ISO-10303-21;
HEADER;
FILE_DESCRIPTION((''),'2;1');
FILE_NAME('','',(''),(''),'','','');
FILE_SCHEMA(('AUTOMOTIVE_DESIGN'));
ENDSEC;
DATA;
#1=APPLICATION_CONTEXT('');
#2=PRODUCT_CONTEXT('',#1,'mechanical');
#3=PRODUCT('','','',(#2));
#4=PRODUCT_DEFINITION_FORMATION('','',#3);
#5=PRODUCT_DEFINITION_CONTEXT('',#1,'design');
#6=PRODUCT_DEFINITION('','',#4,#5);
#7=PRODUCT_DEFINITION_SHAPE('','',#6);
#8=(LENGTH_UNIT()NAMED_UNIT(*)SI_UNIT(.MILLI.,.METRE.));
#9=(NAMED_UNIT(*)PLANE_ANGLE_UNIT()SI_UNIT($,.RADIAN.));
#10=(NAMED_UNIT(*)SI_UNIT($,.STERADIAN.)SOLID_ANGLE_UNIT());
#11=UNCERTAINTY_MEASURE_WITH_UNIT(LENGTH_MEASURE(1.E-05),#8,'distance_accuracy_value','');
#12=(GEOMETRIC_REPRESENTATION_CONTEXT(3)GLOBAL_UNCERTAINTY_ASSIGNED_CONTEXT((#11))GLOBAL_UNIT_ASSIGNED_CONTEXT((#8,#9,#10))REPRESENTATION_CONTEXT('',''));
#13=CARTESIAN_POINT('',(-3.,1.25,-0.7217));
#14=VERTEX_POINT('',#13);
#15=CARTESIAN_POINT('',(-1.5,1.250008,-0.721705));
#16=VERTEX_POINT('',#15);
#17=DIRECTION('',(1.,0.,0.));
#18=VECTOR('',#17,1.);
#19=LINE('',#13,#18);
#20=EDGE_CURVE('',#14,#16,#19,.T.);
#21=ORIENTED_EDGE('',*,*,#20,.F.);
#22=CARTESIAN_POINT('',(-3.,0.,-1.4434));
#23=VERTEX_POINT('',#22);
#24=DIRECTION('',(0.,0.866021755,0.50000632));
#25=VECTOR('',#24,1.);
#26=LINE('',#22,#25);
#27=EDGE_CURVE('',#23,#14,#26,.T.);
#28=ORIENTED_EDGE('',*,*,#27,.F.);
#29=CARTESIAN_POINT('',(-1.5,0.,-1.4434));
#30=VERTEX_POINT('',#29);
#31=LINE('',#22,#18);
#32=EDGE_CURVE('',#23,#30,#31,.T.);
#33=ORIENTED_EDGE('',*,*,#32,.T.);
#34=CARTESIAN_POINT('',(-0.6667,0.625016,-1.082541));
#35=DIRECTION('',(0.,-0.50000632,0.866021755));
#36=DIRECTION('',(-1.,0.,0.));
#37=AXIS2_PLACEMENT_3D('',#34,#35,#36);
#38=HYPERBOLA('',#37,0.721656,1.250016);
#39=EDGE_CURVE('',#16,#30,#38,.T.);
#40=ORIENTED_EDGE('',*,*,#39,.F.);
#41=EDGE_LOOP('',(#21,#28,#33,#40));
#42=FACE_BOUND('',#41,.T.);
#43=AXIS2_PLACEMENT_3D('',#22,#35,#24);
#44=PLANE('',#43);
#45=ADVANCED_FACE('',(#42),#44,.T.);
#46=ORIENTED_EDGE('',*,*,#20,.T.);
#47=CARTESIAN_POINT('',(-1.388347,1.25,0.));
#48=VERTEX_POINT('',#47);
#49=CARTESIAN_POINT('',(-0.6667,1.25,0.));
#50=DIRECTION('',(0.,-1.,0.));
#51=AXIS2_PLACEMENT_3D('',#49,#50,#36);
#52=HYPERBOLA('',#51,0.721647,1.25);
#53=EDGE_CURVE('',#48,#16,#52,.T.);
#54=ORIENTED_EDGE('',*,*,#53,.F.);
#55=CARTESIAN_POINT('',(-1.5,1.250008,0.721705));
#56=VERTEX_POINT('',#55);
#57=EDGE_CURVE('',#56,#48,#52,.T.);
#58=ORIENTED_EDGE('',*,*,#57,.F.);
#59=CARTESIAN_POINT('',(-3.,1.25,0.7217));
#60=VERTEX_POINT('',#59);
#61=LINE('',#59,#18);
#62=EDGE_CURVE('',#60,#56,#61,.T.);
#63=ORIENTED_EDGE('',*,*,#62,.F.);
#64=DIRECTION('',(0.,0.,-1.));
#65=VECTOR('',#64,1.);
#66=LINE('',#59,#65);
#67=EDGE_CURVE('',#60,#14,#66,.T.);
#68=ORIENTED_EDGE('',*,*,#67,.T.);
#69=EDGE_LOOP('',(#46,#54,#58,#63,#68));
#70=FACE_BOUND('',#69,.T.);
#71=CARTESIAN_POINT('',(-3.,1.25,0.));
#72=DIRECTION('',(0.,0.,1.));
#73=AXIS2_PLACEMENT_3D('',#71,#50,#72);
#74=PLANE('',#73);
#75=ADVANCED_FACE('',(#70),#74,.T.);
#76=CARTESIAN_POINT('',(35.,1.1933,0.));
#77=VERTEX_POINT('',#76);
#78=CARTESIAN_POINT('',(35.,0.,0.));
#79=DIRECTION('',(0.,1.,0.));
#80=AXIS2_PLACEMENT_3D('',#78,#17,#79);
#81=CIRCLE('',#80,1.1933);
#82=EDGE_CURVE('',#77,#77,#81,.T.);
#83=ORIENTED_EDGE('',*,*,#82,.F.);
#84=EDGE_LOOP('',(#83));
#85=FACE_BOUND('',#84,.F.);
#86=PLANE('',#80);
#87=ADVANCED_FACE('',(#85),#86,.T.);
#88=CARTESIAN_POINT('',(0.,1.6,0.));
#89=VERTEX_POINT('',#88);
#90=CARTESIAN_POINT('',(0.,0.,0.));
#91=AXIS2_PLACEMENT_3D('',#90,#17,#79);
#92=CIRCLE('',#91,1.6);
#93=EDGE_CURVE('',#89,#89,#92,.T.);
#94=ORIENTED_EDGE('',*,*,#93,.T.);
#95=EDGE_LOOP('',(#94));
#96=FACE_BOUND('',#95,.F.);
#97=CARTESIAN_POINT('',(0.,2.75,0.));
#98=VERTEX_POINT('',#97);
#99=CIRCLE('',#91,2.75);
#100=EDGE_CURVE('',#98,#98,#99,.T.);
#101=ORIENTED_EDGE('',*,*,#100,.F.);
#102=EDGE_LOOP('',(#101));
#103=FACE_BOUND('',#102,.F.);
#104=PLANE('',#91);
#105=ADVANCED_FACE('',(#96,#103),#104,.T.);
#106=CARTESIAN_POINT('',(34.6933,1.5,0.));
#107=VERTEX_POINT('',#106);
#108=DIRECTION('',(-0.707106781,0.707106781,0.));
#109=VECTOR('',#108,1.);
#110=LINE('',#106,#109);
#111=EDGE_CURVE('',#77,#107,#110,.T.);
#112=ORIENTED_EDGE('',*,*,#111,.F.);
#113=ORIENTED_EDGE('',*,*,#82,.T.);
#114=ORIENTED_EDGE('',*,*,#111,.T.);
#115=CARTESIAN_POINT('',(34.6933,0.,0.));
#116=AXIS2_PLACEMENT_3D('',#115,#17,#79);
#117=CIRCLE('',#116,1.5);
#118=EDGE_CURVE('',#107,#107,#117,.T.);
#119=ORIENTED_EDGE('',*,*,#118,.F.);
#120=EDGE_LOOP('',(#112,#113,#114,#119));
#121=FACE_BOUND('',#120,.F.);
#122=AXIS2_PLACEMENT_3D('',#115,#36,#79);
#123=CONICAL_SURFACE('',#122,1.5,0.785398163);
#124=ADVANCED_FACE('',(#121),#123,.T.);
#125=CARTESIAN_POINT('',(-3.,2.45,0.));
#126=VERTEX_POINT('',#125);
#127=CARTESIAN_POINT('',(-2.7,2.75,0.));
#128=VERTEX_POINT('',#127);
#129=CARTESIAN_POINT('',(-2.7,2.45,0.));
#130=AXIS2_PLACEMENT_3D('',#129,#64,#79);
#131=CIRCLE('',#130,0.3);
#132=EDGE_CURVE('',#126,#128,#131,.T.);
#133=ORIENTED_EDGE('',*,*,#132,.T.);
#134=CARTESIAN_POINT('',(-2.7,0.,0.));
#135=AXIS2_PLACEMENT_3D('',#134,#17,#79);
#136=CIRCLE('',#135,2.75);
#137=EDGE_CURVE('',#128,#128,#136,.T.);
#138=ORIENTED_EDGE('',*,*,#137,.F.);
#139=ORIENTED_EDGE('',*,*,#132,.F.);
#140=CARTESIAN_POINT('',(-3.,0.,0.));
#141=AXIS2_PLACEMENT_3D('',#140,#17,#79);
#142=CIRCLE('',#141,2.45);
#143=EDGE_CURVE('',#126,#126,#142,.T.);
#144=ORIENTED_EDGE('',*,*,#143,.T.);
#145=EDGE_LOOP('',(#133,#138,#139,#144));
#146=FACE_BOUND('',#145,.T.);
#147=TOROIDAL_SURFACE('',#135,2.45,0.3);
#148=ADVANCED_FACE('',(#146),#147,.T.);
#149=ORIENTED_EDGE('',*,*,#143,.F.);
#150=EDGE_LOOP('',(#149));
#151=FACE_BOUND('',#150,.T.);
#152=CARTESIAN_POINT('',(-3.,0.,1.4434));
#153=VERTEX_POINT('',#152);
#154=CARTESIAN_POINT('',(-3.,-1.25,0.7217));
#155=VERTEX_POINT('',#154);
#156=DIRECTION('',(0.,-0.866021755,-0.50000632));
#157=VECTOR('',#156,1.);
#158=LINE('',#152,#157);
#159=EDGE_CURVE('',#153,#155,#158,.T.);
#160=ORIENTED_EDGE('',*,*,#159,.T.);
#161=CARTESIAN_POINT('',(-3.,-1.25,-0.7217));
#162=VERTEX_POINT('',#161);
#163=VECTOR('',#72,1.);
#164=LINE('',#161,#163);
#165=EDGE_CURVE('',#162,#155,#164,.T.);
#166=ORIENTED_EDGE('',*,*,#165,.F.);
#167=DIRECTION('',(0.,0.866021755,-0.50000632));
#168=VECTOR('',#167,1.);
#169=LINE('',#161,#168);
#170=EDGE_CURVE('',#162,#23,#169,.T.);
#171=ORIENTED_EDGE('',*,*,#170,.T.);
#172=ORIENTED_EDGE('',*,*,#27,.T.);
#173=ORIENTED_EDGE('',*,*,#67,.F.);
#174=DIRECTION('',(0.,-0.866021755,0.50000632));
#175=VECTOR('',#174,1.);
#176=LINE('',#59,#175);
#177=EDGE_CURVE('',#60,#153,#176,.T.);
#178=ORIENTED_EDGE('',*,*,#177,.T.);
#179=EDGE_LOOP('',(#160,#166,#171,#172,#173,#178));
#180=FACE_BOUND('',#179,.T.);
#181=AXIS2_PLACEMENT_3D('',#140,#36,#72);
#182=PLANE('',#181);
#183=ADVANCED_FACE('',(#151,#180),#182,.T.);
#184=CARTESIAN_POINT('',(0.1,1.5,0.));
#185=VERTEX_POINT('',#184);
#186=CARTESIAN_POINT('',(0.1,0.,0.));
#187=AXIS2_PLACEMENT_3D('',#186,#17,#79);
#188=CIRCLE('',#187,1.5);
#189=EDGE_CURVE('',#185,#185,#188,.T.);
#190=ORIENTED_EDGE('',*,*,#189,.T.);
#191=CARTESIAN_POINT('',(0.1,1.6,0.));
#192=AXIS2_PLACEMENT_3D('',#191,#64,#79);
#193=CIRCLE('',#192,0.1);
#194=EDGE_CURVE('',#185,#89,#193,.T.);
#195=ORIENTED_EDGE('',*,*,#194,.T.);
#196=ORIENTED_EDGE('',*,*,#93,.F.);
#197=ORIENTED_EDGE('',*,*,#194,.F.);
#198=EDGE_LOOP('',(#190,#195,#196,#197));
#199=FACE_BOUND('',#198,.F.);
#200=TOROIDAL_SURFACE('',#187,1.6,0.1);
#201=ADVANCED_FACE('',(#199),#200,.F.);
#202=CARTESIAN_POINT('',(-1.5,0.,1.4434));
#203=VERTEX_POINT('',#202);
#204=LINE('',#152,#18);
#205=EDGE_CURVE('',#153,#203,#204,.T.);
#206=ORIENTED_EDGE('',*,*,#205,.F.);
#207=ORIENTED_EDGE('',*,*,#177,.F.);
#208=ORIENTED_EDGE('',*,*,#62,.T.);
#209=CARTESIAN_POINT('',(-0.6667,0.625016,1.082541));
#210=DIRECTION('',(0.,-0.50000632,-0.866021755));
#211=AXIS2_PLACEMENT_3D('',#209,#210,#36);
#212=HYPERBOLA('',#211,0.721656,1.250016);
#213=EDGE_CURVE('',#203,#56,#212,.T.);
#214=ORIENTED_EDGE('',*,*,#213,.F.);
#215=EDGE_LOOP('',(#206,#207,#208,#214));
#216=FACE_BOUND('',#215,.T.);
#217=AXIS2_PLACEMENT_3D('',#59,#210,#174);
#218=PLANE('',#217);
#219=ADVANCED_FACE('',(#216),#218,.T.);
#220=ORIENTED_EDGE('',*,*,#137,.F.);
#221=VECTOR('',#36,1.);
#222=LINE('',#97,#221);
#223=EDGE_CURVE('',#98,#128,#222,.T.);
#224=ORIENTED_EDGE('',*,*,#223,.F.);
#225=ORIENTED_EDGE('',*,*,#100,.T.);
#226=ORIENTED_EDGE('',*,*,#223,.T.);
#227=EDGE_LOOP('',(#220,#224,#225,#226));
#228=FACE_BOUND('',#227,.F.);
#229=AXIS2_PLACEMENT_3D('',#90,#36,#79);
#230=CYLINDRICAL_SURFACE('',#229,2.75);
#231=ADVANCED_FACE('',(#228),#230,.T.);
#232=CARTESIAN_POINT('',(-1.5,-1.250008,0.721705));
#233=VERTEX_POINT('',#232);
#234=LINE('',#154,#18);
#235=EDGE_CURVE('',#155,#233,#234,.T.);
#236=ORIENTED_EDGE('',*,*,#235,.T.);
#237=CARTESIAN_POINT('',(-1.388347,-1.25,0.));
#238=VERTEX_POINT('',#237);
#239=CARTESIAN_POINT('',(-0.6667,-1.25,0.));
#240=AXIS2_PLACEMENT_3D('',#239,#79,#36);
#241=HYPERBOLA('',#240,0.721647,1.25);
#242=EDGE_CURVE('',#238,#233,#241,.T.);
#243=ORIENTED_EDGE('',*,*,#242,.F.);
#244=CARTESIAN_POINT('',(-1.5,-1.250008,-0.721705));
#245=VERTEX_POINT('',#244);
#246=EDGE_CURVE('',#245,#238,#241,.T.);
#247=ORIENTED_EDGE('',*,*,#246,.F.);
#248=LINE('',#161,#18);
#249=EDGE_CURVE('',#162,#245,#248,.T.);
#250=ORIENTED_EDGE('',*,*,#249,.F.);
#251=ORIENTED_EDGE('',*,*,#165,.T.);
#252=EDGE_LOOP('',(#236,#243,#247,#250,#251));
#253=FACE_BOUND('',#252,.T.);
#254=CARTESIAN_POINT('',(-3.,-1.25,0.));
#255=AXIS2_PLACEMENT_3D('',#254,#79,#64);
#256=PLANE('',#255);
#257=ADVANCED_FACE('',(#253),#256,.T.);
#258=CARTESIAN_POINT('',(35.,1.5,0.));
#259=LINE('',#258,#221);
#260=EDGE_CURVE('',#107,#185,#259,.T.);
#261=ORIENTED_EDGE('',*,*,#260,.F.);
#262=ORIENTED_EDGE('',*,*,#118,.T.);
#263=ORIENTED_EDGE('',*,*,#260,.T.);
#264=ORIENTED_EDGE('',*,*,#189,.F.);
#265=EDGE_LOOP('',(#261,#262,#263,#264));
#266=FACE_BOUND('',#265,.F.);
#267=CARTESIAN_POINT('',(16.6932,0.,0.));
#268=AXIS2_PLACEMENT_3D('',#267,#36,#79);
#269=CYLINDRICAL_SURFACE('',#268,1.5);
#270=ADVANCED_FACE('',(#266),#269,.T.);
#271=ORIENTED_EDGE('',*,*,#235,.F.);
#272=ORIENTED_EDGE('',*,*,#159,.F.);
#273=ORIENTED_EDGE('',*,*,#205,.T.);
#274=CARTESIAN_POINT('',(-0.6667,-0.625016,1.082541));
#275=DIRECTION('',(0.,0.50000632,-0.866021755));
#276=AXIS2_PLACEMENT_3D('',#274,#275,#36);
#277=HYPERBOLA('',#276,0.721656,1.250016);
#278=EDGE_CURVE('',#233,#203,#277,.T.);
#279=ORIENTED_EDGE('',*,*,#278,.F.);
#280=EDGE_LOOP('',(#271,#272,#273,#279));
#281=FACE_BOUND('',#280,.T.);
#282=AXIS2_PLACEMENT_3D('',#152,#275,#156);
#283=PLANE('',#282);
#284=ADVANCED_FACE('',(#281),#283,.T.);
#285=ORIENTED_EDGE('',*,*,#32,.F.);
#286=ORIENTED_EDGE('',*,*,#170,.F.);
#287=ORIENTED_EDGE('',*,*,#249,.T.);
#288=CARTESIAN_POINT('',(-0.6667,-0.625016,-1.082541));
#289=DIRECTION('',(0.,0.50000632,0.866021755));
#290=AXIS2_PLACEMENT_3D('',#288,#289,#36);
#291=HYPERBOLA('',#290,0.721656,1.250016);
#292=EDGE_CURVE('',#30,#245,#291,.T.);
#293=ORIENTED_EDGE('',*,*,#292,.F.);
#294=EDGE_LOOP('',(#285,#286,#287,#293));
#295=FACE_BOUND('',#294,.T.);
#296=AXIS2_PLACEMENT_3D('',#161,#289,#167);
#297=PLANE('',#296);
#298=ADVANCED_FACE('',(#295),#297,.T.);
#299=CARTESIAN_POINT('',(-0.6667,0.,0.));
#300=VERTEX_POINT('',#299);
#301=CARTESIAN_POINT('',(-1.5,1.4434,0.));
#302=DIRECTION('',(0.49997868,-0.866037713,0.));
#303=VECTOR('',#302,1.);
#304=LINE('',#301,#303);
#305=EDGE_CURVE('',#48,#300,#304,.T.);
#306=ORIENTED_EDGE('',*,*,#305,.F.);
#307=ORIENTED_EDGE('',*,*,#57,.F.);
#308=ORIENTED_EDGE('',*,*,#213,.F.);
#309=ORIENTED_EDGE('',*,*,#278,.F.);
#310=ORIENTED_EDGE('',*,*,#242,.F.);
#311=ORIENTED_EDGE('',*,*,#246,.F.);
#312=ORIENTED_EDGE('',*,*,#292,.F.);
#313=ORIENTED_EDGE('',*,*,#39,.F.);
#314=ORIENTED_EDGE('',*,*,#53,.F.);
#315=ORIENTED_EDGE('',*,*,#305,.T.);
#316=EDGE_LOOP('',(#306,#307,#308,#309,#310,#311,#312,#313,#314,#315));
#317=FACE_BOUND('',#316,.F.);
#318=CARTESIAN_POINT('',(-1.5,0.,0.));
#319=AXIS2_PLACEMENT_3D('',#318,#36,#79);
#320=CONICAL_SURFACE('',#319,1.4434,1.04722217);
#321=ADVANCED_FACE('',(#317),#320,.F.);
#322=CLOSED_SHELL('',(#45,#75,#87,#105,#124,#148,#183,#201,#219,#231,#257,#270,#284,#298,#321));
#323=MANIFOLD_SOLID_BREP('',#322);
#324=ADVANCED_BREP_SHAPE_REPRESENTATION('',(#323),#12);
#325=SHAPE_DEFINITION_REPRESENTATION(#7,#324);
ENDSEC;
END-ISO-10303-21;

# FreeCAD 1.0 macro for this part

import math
import FreeCAD as App
import Part
import Sketcher
from FreeCAD import Vector
Q = App.Units.Quantity


def edges_at(feature, points):
    """Names of the edges that pass closest to the given points."""
    edges = feature.Shape.Edges
    near = lambda p: min(range(len(edges)), key=lambda i: edges[i].distToShape(Part.Vertex(*p))[0])
    return sorted({f"Edge{near(p) + 1}" for p in points})

doc = App.newDocument("Part")
body = doc.addObject("PartDesign::Body", "Body")

sketch1 = body.newObject("Sketcher::SketchObject", "Sketch")
sketch1.AttachmentSupport = (doc.getObject("XY_Plane"), [""])
sketch1.MapMode = "FlatFace"
sketch1.addGeometry([
    Part.LineSegment(Vector(-1.5, 1.4, 0), Vector(-0.7, 0, 0)),
    Part.LineSegment(Vector(-0.7, 0, 0), Vector(35, 0, 0)),
    Part.LineSegment(Vector(35, 0, 0), Vector(35, 1.5, 0)),
    Part.LineSegment(Vector(35, 1.5, 0), Vector(0, 1.5, 0)),
    Part.LineSegment(Vector(0, 1.5, 0), Vector(0, 2.8, 0)),
    Part.LineSegment(Vector(0, 2.8, 0), Vector(-3, 2.8, 0)),
    Part.LineSegment(Vector(-3, 2.8, 0), Vector(-3, 1.4, 0)),
    Part.LineSegment(Vector(-3, 1.4, 0), Vector(-1.5, 1.4, 0)),
], False)
sketch1.addConstraint([
    Sketcher.Constraint("Coincident", 0, 2, 1, 1),
    Sketcher.Constraint("Coincident", 1, 2, 2, 1),
    Sketcher.Constraint("Coincident", 2, 2, 3, 1),
    Sketcher.Constraint("Coincident", 3, 2, 4, 1),
    Sketcher.Constraint("Coincident", 4, 2, 5, 1),
    Sketcher.Constraint("Coincident", 5, 2, 6, 1),
    Sketcher.Constraint("Coincident", 6, 2, 7, 1),
    Sketcher.Constraint("Coincident", 7, 2, 0, 1),
    Sketcher.Constraint("Horizontal", 1),
    Sketcher.Constraint("Vertical", 2),
    Sketcher.Constraint("Horizontal", 3),
    Sketcher.Constraint("Vertical", 4),
    Sketcher.Constraint("Horizontal", 5),
    Sketcher.Constraint("Vertical", 6),
    Sketcher.Constraint("Horizontal", 7),
    Sketcher.Constraint("PointOnObject", 0, 2, -1),
    Sketcher.Constraint("PointOnObject", 3, 2, -2),
    Sketcher.Constraint("Equal", 7, 2),
    Sketcher.Constraint("DistanceX", 3, 2, 3, 1, 35.0),
    Sketcher.Constraint("DistanceX", 5, 2, 5, 1, 3.0),
    Sketcher.Constraint("DistanceX", 7, 1, 7, 2, 1.5),
    Sketcher.Constraint("DistanceY", 4, 1, 4, 2, 1.25),
    Sketcher.Constraint("DistanceX", 1, 1, 1, 2, 35.6667),
    Sketcher.Constraint("DistanceY", 6, 2, 6, 1, 1.3066),
])
revolution = body.newObject("PartDesign::Revolution", "Revolution")
revolution.Profile = sketch1
revolution.ReferenceAxis = (sketch1, ["H_Axis"])
revolution.Angle = 360

sketch2 = body.newObject("Sketcher::SketchObject", "Sketch001")
sketch2.AttachmentSupport = (doc.getObject("YZ_Plane"), [""])
sketch2.MapMode = "FlatFace"
sketch2.AttachmentOffset = App.Placement(Vector(0, 0, -3), App.Rotation())
sketch2.addGeometry([
    Part.LineSegment(Vector(1.2, 0.7, 0), Vector(0, 1.4, 0)),
    Part.ArcOfCircle(Part.Circle(Vector(0, 0, 0), Vector(0, 0, 1), 1.4), math.radians(30), math.radians(90)),
    Part.ArcOfCircle(Part.Circle(Vector(0, 0, 0), Vector(0, 0, 1), 1.4), math.radians(90), math.radians(150)),
    Part.LineSegment(Vector(0, 1.4, 0), Vector(-1.2, 0.7, 0)),
    Part.ArcOfCircle(Part.Circle(Vector(0, 0, 0), Vector(0, 0, 1), 1.4), math.radians(-30), math.radians(30)),
    Part.LineSegment(Vector(1.2, 0.7, 0), Vector(1.2, -0.7, 0)),
    Part.LineSegment(Vector(-1.2, 0.7, 0), Vector(-1.2, -0.7, 0)),
    Part.ArcOfCircle(Part.Circle(Vector(0, 0, 0), Vector(0, 0, 1), 1.4), math.radians(150), math.radians(210)),
    Part.LineSegment(Vector(-1.2, -0.7, 0), Vector(0, -1.4, 0)),
    Part.ArcOfCircle(Part.Circle(Vector(0, 0, 0), Vector(0, 0, 1), 1.4), math.radians(-150), math.radians(-90)),
    Part.ArcOfCircle(Part.Circle(Vector(0, 0, 0), Vector(0, 0, 1), 1.4), math.radians(-90), math.radians(-30)),
    Part.LineSegment(Vector(0, -1.4, 0), Vector(1.2, -0.7, 0)),
], False)
sketch2.addConstraint([
    Sketcher.Constraint("Coincident", 0, 1, 1, 1),
    Sketcher.Constraint("Coincident", 1, 2, 0, 2),
    Sketcher.Constraint("Coincident", 2, 1, 3, 1),
    Sketcher.Constraint("Coincident", 3, 2, 2, 2),
    Sketcher.Constraint("Coincident", 4, 1, 5, 2),
    Sketcher.Constraint("Coincident", 5, 1, 4, 2),
    Sketcher.Constraint("Coincident", 6, 1, 7, 1),
    Sketcher.Constraint("Coincident", 7, 2, 6, 2),
    Sketcher.Constraint("Coincident", 8, 1, 9, 1),
    Sketcher.Constraint("Coincident", 9, 2, 8, 2),
    Sketcher.Constraint("Coincident", 10, 1, 11, 1),
    Sketcher.Constraint("Coincident", 11, 2, 10, 2),
    Sketcher.Constraint("Vertical", 5),
    Sketcher.Constraint("Vertical", 6),
    Sketcher.Constraint("Coincident", 1, 3, -1, 1),
    Sketcher.Constraint("Coincident", 2, 3, -1, 1),
    Sketcher.Constraint("Coincident", 4, 3, -1, 1),
    Sketcher.Constraint("Coincident", 7, 3, -1, 1),
    Sketcher.Constraint("Coincident", 9, 3, -1, 1),
    Sketcher.Constraint("Coincident", 10, 3, -1, 1),
    Sketcher.Constraint("Coincident", 2, 1, 1, 2),
    Sketcher.Constraint("Coincident", 5, 1, 0, 1),
    Sketcher.Constraint("Coincident", 6, 1, 3, 2),
    Sketcher.Constraint("Coincident", 8, 1, 7, 2),
    Sketcher.Constraint("Coincident", 10, 1, 9, 2),
    Sketcher.Constraint("PointOnObject", 1, 2, -2),
    Sketcher.Constraint("PointOnObject", 9, 2, -2),
    Sketcher.Constraint("Parallel", 0, 8),
    Sketcher.Constraint("Parallel", 3, 11),
    Sketcher.Constraint("Angle", 0, Q("149.9996 deg")),
    Sketcher.Constraint("Radius", 1, 1.4434),
])
pad1 = body.newObject("PartDesign::Pad", "Pad")
pad1.Profile = sketch2
pad1.Type = "UpToFirst"
doc.recompute()

fillet = body.newObject("PartDesign::Fillet", "Fillet")
fillet.Base = (pad1, edges_at(pad1, [(-3, -2.75, 0)]))
fillet.Radius = 0.3
doc.recompute()

chamfer = body.newObject("PartDesign::Chamfer", "Chamfer")
chamfer.Base = (fillet, edges_at(fillet, [(35, -1.5, 0)]))
chamfer.ChamferType = "Two distances"
chamfer.Size = 0.3067
chamfer.Size2 = 0.3067
doc.recompute()

fillet2 = body.newObject("PartDesign::Fillet", "Fillet001")
fillet2.Base = (chamfer, edges_at(chamfer, [(0, -1.5, 0)]))
fillet2.Radius = 0.1

doc.recompute()
